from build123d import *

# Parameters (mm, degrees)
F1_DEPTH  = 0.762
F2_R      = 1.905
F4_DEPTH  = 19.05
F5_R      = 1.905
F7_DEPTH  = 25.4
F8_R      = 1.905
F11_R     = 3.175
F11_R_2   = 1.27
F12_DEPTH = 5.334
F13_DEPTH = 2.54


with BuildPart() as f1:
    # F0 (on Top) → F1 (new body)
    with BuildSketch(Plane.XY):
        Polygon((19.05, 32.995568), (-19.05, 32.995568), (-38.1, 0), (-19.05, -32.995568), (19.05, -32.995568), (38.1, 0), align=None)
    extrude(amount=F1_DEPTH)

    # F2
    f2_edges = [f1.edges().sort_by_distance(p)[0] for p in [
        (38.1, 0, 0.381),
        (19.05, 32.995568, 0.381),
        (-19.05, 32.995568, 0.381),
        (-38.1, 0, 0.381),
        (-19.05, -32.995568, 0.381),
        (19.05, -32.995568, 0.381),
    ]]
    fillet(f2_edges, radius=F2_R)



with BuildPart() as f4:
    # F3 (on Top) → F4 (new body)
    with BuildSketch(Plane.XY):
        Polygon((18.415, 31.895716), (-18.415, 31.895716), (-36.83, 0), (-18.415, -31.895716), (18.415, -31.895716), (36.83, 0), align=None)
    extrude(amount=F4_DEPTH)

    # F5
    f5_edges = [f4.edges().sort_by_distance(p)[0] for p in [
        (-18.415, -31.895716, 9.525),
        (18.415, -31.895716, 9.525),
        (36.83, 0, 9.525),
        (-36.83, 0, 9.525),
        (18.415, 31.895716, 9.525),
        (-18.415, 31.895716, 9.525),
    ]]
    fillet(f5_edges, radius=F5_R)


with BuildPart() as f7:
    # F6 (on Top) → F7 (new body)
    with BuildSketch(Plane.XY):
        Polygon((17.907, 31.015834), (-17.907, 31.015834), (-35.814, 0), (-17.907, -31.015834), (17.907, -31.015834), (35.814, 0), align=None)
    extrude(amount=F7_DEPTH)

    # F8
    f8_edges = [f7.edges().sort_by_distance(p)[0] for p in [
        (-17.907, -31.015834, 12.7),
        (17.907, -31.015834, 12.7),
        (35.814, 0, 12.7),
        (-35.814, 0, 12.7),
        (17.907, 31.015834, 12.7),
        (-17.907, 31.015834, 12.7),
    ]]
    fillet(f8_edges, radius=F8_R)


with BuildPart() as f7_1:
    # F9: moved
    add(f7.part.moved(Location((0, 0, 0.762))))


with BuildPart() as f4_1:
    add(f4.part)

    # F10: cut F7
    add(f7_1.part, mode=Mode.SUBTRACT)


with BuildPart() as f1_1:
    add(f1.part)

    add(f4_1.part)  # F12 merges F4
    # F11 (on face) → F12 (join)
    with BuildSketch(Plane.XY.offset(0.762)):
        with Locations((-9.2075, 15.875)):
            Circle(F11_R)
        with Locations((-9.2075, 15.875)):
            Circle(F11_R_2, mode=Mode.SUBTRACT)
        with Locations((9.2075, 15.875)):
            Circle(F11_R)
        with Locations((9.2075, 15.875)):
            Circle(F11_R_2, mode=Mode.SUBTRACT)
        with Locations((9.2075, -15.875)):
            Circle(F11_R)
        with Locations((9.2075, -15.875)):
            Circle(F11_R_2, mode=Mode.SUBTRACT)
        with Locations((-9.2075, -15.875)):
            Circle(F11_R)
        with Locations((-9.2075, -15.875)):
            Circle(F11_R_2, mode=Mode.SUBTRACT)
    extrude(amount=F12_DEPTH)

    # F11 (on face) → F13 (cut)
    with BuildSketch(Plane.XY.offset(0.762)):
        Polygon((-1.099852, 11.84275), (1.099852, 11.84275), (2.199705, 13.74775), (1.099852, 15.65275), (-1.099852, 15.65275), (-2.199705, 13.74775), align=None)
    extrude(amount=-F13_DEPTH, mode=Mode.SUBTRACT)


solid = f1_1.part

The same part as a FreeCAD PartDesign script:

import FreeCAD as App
import Part
import Sketcher

V = App.Vector
Q = App.Units.Quantity


def edges_at(feature, points):
    """Names of the edges that pass closest to the given points."""
    edges = feature.Shape.Edges
    near = lambda p: min(range(len(edges)), key=lambda i: edges[i].distToShape(Part.Vertex(*p))[0])
    return sorted({f"Edge{near(p) + 1}" for p in points})

doc = App.newDocument("Part")
body = doc.addObject("PartDesign::Body", "Body")

sketch1 = body.newObject("Sketcher::SketchObject", "Sketch")
sketch1.AttachmentSupport = (doc.getObject("XY_Plane"), [""])
sketch1.MapMode = "FlatFace"
sketch1.addGeometry([
    Part.LineSegment(V(19, 33, 0), V(-19, 33, 0)),
    Part.LineSegment(V(-19, 33, 0), V(-38, 0, 0)),
    Part.LineSegment(V(-38, 0, 0), V(-19, -33, 0)),
    Part.LineSegment(V(-19, -33, 0), V(19, -33, 0)),
    Part.LineSegment(V(19, -33, 0), V(38, 0, 0)),
    Part.LineSegment(V(38, 0, 0), V(19, 33, 0)),
], False)
sketch1.addConstraint([
    Sketcher.Constraint("Coincident", 0, 2, 1, 1),
    Sketcher.Constraint("Coincident", 1, 2, 2, 1),
    Sketcher.Constraint("Coincident", 2, 2, 3, 1),
    Sketcher.Constraint("Coincident", 3, 2, 4, 1),
    Sketcher.Constraint("Coincident", 4, 2, 5, 1),
    Sketcher.Constraint("Coincident", 5, 2, 0, 1),
    Sketcher.Constraint("Horizontal", 0),
    Sketcher.Constraint("Horizontal", 3),
    Sketcher.Constraint("Symmetric", 0, 2, 3, 2, -1, 1),
    Sketcher.Constraint("Symmetric", 1, 2, 4, 2, -1, 1),
    Sketcher.Constraint("PointOnObject", 1, 2, -1),
    Sketcher.Constraint("Parallel", 2, 5),
    Sketcher.Constraint("Vertical", 0, 2, 2, 2),
    Sketcher.Constraint("DistanceX", 0, 2, 0, 1, Q("1.5 in")),
    Sketcher.Constraint("Angle", 1, Q("-120 deg")),
    Sketcher.Constraint("DistanceX", 1, 2, 4, 2, Q("3 in")),
])
pad1 = body.newObject("PartDesign::Pad", "Pad")
pad1.Profile = sketch1
pad1.Length = Q("0.03 in")
doc.recompute()

fillet = body.newObject("PartDesign::Fillet", "Fillet")
fillet.Base = (pad1, edges_at(pad1, [
    (38.1, 0, 0.381),
    (19.05, 32.996, 0.381),
    (-19.05, 32.996, 0.381),
    (-38.1, 0, 0.381),
    (-19.05, -32.996, 0.381),
    (19.05, -32.996, 0.381),
]))
fillet.Radius = Q("0.075 in")
body2 = doc.addObject("PartDesign::Body", "Body001")

sketch2 = body2.newObject("Sketcher::SketchObject", "Sketch001")
sketch2.AttachmentSupport = (doc.getObject("XY_Plane001"), [""])
sketch2.MapMode = "FlatFace"
sketch2.addGeometry([
    Part.LineSegment(V(18, 32, 0), V(-18, 32, 0)),
    Part.LineSegment(V(-18, 32, 0), V(-37, 0, 0)),
    Part.LineSegment(V(-37, 0, 0), V(-18, -32, 0)),
    Part.LineSegment(V(-18, -32, 0), V(18, -32, 0)),
    Part.LineSegment(V(18, -32, 0), V(37, 0, 0)),
    Part.LineSegment(V(37, 0, 0), V(18, 32, 0)),
], False)
sketch2.addConstraint([
    Sketcher.Constraint("Coincident", 0, 2, 1, 1),
    Sketcher.Constraint("Coincident", 1, 2, 2, 1),
    Sketcher.Constraint("Coincident", 2, 2, 3, 1),
    Sketcher.Constraint("Coincident", 3, 2, 4, 1),
    Sketcher.Constraint("Coincident", 4, 2, 5, 1),
    Sketcher.Constraint("Coincident", 5, 2, 0, 1),
    Sketcher.Constraint("Horizontal", 0),
    Sketcher.Constraint("Horizontal", 3),
    Sketcher.Constraint("Symmetric", 0, 2, 3, 2, -1, 1),
    Sketcher.Constraint("Symmetric", 1, 2, 4, 2, -1, 1),
    Sketcher.Constraint("PointOnObject", 1, 2, -1),
    Sketcher.Constraint("Parallel", 2, 5),
    Sketcher.Constraint("Vertical", 0, 2, 2, 2),
    Sketcher.Constraint("Angle", 1, Q("-120 deg")),
    Sketcher.Constraint("DistanceX", 0, 2, 0, 1, Q("1.45 in")),
    Sketcher.Constraint("DistanceX", 1, 2, 4, 2, Q("2.9 in")),
])
pad2 = body2.newObject("PartDesign::Pad", "Pad001")
pad2.Profile = sketch2
pad2.Length = Q("0.75 in")
doc.recompute()

fillet2 = body2.newObject("PartDesign::Fillet", "Fillet001")
fillet2.Base = (pad2, edges_at(pad2, [
    (-18.415, -31.896, 9.525),
    (18.415, -31.896, 9.525),
    (36.83, 0, 9.525),
    (-36.83, 0, 9.525),
    (18.415, 31.896, 9.525),
    (-18.415, 31.896, 9.525),
]))
fillet2.Radius = Q("0.075 in")
body3 = doc.addObject("PartDesign::Body", "Body002")

sketch3 = body3.newObject("Sketcher::SketchObject", "Sketch002")
sketch3.AttachmentSupport = (doc.getObject("XY_Plane002"), [""])
sketch3.MapMode = "FlatFace"
sketch3.addGeometry([
    Part.LineSegment(V(18, 31, 0), V(-18, 31, 0)),
    Part.LineSegment(V(-18, 31, 0), V(-36, 0, 0)),
    Part.LineSegment(V(-36, 0, 0), V(-18, -31, 0)),
    Part.LineSegment(V(-18, -31, 0), V(18, -31, 0)),
    Part.LineSegment(V(18, -31, 0), V(36, 0, 0)),
    Part.LineSegment(V(36, 0, 0), V(18, 31, 0)),
], False)
sketch3.addConstraint([
    Sketcher.Constraint("Coincident", 0, 2, 1, 1),
    Sketcher.Constraint("Coincident", 1, 2, 2, 1),
    Sketcher.Constraint("Coincident", 2, 2, 3, 1),
    Sketcher.Constraint("Coincident", 3, 2, 4, 1),
    Sketcher.Constraint("Coincident", 4, 2, 5, 1),
    Sketcher.Constraint("Coincident", 5, 2, 0, 1),
    Sketcher.Constraint("Horizontal", 0),
    Sketcher.Constraint("Horizontal", 3),
    Sketcher.Constraint("Symmetric", 0, 2, 3, 2, -1, 1),
    Sketcher.Constraint("Symmetric", 1, 2, 4, 2, -1, 1),
    Sketcher.Constraint("PointOnObject", 1, 2, -1),
    Sketcher.Constraint("Parallel", 2, 5),
    Sketcher.Constraint("Vertical", 0, 2, 2, 2),
    Sketcher.Constraint("Angle", 1, Q("-120 deg")),
    Sketcher.Constraint("DistanceX", 0, 2, 0, 1, Q("1.41 in")),
    Sketcher.Constraint("Distance", 1, Q("1.41 in")),
])
pad3 = body3.newObject("PartDesign::Pad", "Pad002")
pad3.Profile = sketch3
pad3.Length = Q("1 in")
doc.recompute()

fillet3 = body3.newObject("PartDesign::Fillet", "Fillet002")
fillet3.Base = (pad3, edges_at(pad3, [
    (-17.907, -31.016, 12.7),
    (17.907, -31.016, 12.7),
    (35.814, 0, 12.7),
    (-35.814, 0, 12.7),
    (17.907, 31.016, 12.7),
    (-17.907, 31.016, 12.7),
]))
fillet3.Radius = Q("0.075 in")
body4 = doc.addObject("PartDesign::Body", "Body003")
doc.recompute()

body3.Placement = App.Placement(V(0, 0, 0.762), App.Rotation(V(0, 0, 1), 0))
boolean = body4.newObject("PartDesign::Boolean", "Boolean")
boolean.Type = "Fuse"
boolean.addObjects([body3])
doc.recompute()

boolean2 = body2.newObject("PartDesign::Boolean", "Boolean001")
boolean2.Type = "Cut"
boolean2.addObjects([body4])
doc.recompute()

boolean3 = body.newObject("PartDesign::Boolean", "Boolean002")
boolean3.Type = "Fuse"
boolean3.addObjects([body2])

sketch4 = body.newObject("Sketcher::SketchObject", "Sketch003")
sketch4.AttachmentSupport = (doc.getObject("XY_Plane"), [""])
sketch4.MapMode = "FlatFace"
sketch4.AttachmentOffset = App.Placement(V(0, 0, 0.03 * 25.4), App.Rotation())
sketch4.addGeometry([
    Part.Circle(V(-9.2, 15.9, 0), V(0, 0, 1), 3.2),
    Part.Circle(V(-9.2, 15.9, 0), V(0, 0, 1), 1.3),
    Part.Circle(V(9.2, 15.9, 0), V(0, 0, 1), 3.2),
    Part.Circle(V(9.2, 15.9, 0), V(0, 0, 1), 1.3),
    Part.Circle(V(9.2, -15.9, 0), V(0, 0, 1), 3.2),
    Part.Circle(V(9.2, -15.9, 0), V(0, 0, 1), 1.3),
    Part.Circle(V(-9.2, -15.9, 0), V(0, 0, 1), 3.2),
    Part.Circle(V(-9.2, -15.9, 0), V(0, 0, 1), 1.3),
], False)
sketch4.addConstraint([
    Sketcher.Constraint("Coincident", 1, 3, 0, 3),
    Sketcher.Constraint("Coincident", 3, 3, 2, 3),
    Sketcher.Constraint("Coincident", 5, 3, 4, 3),
    Sketcher.Constraint("Coincident", 7, 3, 6, 3),
    Sketcher.Constraint("Equal", 0, 2),
    Sketcher.Constraint("Equal", 1, 3),
    Sketcher.Constraint("Equal", 2, 4),
    Sketcher.Constraint("Equal", 3, 5),
    Sketcher.Constraint("Equal", 4, 6),
    Sketcher.Constraint("Equal", 5, 7),
    Sketcher.Constraint("Symmetric", 0, 3, 4, 3, -1, 1),
    Sketcher.Constraint("Symmetric", 2, 3, 6, 3, -1, 1),
    Sketcher.Constraint("Symmetric", 0, 3, 2, 3, -2),
    Sketcher.Constraint("Diameter", 1, Q("0.1 in")),
    Sketcher.Constraint("Diameter", 0, Q("0.25 in")),
    Sketcher.Constraint("DistanceY", 4, 3, 2, 3, Q("1.25 in")),
    Sketcher.Constraint("DistanceX", 0, 3, 2, 3, Q("0.725 in")),
])
pad4 = body.newObject("PartDesign::Pad", "Pad003")
pad4.Profile = sketch4
pad4.Length = Q("0.21 in")

sketch5 = body.newObject("Sketcher::SketchObject", "Sketch004")
sketch5.AttachmentSupport = (doc.getObject("XY_Plane"), [""])
sketch5.MapMode = "FlatFace"
sketch5.AttachmentOffset = App.Placement(V(0, 0, 0.03 * 25.4), App.Rotation())
sketch5.addGeometry([
    Part.LineSegment(V(-1.1, 11.8, 0), V(1.1, 11.8, 0)),
    Part.LineSegment(V(1.1, 11.8, 0), V(2.2, 13.7, 0)),
    Part.LineSegment(V(2.2, 13.7, 0), V(1.1, 15.7, 0)),
    Part.LineSegment(V(1.1, 15.7, 0), V(-1.1, 15.7, 0)),
    Part.LineSegment(V(-1.1, 15.7, 0), V(-2.2, 13.7, 0)),
    Part.LineSegment(V(-2.2, 13.7, 0), V(-1.1, 11.8, 0)),
], False)
sketch5.addConstraint([
    Sketcher.Constraint("Coincident", 0, 2, 1, 1),
    Sketcher.Constraint("Coincident", 1, 2, 2, 1),
    Sketcher.Constraint("Coincident", 2, 2, 3, 1),
    Sketcher.Constraint("Coincident", 3, 2, 4, 1),
    Sketcher.Constraint("Coincident", 4, 2, 5, 1),
    Sketcher.Constraint("Coincident", 5, 2, 0, 1),
    Sketcher.Constraint("Horizontal", 0),
    Sketcher.Constraint("Horizontal", 3),
    Sketcher.Constraint("Symmetric", 1, 2, 4, 2, -2),
    Sketcher.Constraint("Parallel", 1, 4),
    Sketcher.Constraint("Parallel", 2, 5),
    Sketcher.Constraint("Vertical", 0, 2, 2, 2),
    Sketcher.Constraint("Vertical", 3, 2, 5, 2),
    Sketcher.Constraint("Angle", 1, Q("59.999983 deg")),
    Sketcher.Constraint("DistanceY", 0, 2, 2, 2, Q("0.15 in")),
    Sketcher.Constraint("DistanceX", 0, 1, 0, 2, 2.199704),
    Sketcher.Constraint("DistanceY", -1, 1, 0, 2, 11.84275),
])
pocket1 = body.newObject("PartDesign::Pocket", "Pocket")
pocket1.Profile = sketch5
pocket1.Length = Q("0.1 in")

doc.recompute()
